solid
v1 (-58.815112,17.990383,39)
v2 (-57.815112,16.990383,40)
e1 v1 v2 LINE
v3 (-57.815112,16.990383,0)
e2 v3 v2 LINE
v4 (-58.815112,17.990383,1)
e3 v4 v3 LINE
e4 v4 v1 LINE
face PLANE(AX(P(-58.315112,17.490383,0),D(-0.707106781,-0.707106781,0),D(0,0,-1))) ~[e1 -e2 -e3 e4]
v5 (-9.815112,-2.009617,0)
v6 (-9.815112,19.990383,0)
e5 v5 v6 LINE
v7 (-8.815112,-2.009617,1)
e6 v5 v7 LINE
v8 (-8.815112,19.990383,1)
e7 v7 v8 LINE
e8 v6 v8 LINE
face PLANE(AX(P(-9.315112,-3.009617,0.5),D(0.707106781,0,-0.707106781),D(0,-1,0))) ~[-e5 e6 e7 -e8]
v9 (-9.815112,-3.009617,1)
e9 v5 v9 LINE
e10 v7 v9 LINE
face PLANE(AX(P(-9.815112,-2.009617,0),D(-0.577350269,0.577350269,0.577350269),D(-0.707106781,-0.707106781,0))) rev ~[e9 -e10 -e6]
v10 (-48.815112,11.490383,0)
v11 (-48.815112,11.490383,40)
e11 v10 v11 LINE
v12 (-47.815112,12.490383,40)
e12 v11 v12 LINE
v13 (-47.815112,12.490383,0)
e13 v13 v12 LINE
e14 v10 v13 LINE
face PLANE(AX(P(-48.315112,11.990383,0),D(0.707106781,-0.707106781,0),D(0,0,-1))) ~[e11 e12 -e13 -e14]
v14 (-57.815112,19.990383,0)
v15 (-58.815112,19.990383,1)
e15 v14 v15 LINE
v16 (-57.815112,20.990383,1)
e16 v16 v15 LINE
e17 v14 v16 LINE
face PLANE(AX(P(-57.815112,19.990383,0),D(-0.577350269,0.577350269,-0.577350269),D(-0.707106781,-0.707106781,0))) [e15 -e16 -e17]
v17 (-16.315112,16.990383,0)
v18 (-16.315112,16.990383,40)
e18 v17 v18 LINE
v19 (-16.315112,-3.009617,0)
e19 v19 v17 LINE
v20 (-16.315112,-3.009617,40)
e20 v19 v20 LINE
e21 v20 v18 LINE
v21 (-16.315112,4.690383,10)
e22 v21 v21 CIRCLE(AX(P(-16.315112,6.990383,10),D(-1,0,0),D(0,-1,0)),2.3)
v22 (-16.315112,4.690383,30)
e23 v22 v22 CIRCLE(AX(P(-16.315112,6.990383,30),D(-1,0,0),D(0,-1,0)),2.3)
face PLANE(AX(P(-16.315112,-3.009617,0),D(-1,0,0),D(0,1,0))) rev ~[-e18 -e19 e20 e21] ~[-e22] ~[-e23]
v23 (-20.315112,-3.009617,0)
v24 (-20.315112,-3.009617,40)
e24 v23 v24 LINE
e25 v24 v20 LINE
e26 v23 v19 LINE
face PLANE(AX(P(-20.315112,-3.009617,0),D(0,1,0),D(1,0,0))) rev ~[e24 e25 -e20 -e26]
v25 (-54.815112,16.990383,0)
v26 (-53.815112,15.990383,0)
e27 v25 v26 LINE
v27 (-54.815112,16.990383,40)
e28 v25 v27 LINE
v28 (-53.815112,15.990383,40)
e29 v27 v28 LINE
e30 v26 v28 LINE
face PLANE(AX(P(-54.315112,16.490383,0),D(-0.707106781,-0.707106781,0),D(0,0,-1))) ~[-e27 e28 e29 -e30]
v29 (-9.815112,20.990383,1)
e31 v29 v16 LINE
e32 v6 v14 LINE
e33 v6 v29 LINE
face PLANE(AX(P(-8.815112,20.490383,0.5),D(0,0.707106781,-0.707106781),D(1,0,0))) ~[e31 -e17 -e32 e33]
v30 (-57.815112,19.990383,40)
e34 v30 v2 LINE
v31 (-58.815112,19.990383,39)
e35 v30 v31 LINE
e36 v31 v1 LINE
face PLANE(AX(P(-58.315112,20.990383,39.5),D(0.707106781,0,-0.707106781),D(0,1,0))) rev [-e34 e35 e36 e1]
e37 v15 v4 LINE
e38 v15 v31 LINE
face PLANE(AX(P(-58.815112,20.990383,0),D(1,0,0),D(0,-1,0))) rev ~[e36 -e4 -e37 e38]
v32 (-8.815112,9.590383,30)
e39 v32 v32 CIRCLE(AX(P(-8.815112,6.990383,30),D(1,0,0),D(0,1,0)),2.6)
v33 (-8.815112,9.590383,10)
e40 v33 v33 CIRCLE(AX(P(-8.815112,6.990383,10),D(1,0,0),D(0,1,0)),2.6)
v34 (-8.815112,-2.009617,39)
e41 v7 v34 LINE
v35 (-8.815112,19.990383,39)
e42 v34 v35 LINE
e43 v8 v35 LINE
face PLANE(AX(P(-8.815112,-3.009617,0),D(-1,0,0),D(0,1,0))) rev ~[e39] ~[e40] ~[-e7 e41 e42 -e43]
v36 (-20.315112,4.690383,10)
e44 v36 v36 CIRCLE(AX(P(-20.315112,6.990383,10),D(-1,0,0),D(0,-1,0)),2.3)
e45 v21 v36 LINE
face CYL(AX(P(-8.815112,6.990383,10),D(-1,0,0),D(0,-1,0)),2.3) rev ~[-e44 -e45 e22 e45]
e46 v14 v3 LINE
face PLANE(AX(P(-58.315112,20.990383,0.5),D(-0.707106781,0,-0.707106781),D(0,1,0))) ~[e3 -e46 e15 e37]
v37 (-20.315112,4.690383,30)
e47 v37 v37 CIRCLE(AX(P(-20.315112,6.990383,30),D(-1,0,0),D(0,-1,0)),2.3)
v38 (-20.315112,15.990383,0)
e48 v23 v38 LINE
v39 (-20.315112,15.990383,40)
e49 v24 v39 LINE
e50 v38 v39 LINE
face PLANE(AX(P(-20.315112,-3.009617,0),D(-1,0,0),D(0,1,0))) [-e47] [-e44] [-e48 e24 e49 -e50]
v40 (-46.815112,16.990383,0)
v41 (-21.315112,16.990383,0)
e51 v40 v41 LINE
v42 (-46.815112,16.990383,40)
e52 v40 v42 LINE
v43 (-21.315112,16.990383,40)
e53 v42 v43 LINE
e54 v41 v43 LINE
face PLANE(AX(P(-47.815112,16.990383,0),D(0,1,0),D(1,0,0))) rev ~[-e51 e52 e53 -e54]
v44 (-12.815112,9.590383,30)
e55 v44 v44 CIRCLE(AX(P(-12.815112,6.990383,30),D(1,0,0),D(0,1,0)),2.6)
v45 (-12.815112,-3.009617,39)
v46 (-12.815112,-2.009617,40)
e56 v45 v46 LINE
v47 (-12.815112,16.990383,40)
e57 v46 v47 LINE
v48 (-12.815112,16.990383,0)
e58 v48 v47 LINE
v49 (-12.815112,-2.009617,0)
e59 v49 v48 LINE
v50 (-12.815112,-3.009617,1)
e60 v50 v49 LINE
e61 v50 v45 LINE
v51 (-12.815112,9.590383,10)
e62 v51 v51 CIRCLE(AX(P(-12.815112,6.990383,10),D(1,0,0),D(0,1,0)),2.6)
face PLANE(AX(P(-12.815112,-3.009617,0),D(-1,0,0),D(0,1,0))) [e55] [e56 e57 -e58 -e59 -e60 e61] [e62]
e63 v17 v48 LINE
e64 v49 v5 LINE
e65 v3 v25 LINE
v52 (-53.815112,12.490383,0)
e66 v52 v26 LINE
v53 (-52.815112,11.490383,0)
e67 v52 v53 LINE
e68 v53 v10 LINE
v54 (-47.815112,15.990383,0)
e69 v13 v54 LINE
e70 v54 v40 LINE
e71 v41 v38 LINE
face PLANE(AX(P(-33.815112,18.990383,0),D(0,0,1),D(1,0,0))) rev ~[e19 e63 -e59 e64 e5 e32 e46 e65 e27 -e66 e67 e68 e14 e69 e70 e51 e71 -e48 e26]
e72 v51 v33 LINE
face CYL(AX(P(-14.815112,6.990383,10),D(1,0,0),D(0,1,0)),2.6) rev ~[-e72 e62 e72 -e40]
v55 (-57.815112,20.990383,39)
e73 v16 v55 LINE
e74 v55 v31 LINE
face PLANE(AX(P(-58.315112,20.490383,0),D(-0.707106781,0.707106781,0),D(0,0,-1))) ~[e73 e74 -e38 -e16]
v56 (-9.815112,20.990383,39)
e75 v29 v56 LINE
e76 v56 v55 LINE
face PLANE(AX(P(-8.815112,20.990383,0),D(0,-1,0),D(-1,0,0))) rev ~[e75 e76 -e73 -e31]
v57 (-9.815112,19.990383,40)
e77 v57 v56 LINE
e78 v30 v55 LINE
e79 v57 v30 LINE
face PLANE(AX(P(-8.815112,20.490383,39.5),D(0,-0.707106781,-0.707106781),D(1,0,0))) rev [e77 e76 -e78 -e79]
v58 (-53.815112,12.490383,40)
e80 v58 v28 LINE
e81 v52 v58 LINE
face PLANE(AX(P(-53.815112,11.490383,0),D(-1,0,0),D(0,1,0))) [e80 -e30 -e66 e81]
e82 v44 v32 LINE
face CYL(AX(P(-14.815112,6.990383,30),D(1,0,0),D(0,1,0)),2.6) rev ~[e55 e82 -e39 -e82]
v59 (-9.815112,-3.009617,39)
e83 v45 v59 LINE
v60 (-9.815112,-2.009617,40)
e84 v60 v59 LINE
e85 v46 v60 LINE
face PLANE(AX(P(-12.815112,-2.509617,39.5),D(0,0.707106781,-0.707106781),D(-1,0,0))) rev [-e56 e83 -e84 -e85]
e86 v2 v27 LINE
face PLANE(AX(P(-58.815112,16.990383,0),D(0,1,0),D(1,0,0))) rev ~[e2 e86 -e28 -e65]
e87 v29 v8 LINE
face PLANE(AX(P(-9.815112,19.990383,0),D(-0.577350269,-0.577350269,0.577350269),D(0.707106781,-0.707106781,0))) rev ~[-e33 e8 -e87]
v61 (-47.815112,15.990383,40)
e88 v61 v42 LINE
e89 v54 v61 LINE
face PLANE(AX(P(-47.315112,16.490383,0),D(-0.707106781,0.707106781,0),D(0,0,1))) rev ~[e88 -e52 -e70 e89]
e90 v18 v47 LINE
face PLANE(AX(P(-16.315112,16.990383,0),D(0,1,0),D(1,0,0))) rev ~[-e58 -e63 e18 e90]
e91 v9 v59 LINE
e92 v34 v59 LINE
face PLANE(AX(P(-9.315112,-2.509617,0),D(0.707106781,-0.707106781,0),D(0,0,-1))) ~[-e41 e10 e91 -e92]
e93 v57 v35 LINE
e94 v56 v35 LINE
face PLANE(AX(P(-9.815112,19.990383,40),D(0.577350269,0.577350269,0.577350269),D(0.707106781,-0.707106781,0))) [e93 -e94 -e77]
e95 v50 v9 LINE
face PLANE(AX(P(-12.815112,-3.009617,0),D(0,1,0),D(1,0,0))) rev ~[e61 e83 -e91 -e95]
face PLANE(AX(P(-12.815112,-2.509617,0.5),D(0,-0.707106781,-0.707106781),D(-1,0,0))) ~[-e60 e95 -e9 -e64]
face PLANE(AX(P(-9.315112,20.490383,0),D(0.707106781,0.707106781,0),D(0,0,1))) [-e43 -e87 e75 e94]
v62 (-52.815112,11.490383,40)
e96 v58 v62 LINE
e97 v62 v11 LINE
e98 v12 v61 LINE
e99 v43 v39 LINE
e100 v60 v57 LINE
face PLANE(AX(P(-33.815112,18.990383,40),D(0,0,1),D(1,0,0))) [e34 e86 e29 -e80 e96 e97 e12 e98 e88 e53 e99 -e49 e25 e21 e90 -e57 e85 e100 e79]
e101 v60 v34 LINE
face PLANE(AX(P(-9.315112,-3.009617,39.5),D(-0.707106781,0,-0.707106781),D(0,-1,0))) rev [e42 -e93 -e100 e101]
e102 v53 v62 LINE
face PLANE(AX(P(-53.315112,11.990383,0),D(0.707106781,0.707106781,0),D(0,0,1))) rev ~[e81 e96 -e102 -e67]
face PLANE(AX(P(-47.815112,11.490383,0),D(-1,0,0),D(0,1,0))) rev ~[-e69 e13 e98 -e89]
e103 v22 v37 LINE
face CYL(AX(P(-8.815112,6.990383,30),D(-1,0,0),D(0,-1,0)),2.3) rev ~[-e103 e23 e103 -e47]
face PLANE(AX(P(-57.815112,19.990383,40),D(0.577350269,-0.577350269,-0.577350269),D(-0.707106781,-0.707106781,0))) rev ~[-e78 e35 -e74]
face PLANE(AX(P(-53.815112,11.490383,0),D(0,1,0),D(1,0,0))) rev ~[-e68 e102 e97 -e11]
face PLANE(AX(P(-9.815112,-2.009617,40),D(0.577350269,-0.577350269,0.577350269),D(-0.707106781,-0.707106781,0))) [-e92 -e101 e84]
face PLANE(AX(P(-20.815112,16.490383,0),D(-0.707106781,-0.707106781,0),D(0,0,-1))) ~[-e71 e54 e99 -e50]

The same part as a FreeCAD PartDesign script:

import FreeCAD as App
import Part
import Sketcher
from FreeCAD import Vector
Q = App.Units.Quantity


def edges_at(feature, points):
    """Names of the edges that pass closest to the given points."""
    edges = feature.Shape.Edges
    near = lambda p: min(range(len(edges)), key=lambda i: edges[i].distToShape(Part.Vertex(*p))[0])
    return sorted({f"Edge{near(p) + 1}" for p in points})

doc = App.newDocument("Part")
body = doc.addObject("PartDesign::Body", "Body")

# Sketch on XY plane
sketch1 = body.newObject("Sketcher::SketchObject", "Sketch")
sketch1.AttachmentSupport = (doc.getObject("XY_Plane"), [""])
sketch1.MapMode = "FlatFace"
sketch1.addGeometry([
    Part.LineSegment(Vector(-8.8, 21, 0), Vector(-58.8, 21, 0)),  # 0
    Part.LineSegment(Vector(-58.8, 21, 0), Vector(-58.8, 17, 0)),  # 1
    Part.LineSegment(Vector(-58.8, 17, 0), Vector(-53.8, 17, 0)),  # 2
    Part.LineSegment(Vector(-53.8, 17, 0), Vector(-53.8, 11.5, 0)),  # 3
    Part.LineSegment(Vector(-53.8, 11.5, 0), Vector(-47.8, 11.5, 0)),  # 4
    Part.LineSegment(Vector(-47.8, 11.5, 0), Vector(-47.8, 17, 0)),  # 5
    Part.LineSegment(Vector(-47.8, 17, 0), Vector(-20.3, 17, 0)),  # 6
    Part.LineSegment(Vector(-20.3, 17, 0), Vector(-20.3, -3, 0)),  # 7
    Part.LineSegment(Vector(-20.3, -3, 0), Vector(-16.3, -3, 0)),  # 8
    Part.LineSegment(Vector(-16.3, -3, 0), Vector(-16.3, 17, 0)),  # 9
    Part.LineSegment(Vector(-16.3, 17, 0), Vector(-12.8, 17, 0)),  # 10
    Part.LineSegment(Vector(-12.8, 17, 0), Vector(-12.8, -3, 0)),  # 11
    Part.LineSegment(Vector(-12.8, -3, 0), Vector(-8.8, -3, 0)),  # 12
    Part.LineSegment(Vector(-8.8, -3, 0), Vector(-8.8, 21, 0)),  # 13
], False)
sketch1.addConstraint([
    Sketcher.Constraint("Coincident", 0, 2, 1, 1),
    Sketcher.Constraint("Coincident", 1, 2, 2, 1),
    Sketcher.Constraint("Coincident", 2, 2, 3, 1),
    Sketcher.Constraint("Coincident", 3, 2, 4, 1),
    Sketcher.Constraint("Coincident", 4, 2, 5, 1),
    Sketcher.Constraint("Coincident", 5, 2, 6, 1),
    Sketcher.Constraint("Coincident", 6, 2, 7, 1),
    Sketcher.Constraint("Coincident", 7, 2, 8, 1),
    Sketcher.Constraint("Coincident", 8, 2, 9, 1),
    Sketcher.Constraint("Coincident", 9, 2, 10, 1),
    Sketcher.Constraint("Coincident", 10, 2, 11, 1),
    Sketcher.Constraint("Coincident", 11, 2, 12, 1),
    Sketcher.Constraint("Coincident", 12, 2, 13, 1),
    Sketcher.Constraint("Coincident", 13, 2, 0, 1),
    Sketcher.Constraint("Horizontal", 0),
    Sketcher.Constraint("Vertical", 1),
    Sketcher.Constraint("Horizontal", 2),
    Sketcher.Constraint("Vertical", 3),
    Sketcher.Constraint("Horizontal", 4),
    Sketcher.Constraint("Vertical", 5),
    Sketcher.Constraint("Horizontal", 6),
    Sketcher.Constraint("Vertical", 7),
    Sketcher.Constraint("Horizontal", 8),
    Sketcher.Constraint("Vertical", 9),
    Sketcher.Constraint("Horizontal", 10),
    Sketcher.Constraint("Vertical", 11),
    Sketcher.Constraint("Horizontal", 12),
    Sketcher.Constraint("Vertical", 13),
    Sketcher.Constraint("Horizontal", 2, 2, 5, 2),
    Sketcher.Constraint("Horizontal", 6, 2, 9, 2),
    Sketcher.Constraint("Horizontal", 8, 2, 11, 2),
    Sketcher.Constraint("Equal", 8, 12),
    Sketcher.Constraint("Equal", 12, 1),
    Sketcher.Constraint("DistanceX", 0, 2, 0, 1, Q("50 mm")),
    Sketcher.Constraint("DistanceX", 2, 1, 2, 2, Q("5 mm")),
    Sketcher.Constraint("DistanceX", 4, 1, 4, 2, Q("6 mm")),
    Sketcher.Constraint("DistanceX", 8, 1, 8, 2, Q("4 mm")),
    Sketcher.Constraint("DistanceY", 7, 2, 7, 1, Q("20 mm")),
    Sketcher.Constraint("DistanceX", 6, 1, 6, 2, Q("27.5 mm")),
    Sketcher.Constraint("DistanceY", 3, 2, 3, 1, Q("5.5 mm")),
    Sketcher.Constraint("DistanceX", 6, 2, -1, 1, Q("20.315112 mm")),
    Sketcher.Constraint("DistanceY", -1, 1, 0, 2, Q("20.990383 mm")),
])
pad1 = body.newObject("PartDesign::Pad", "Pad")
pad1.Profile = sketch1
pad1.Length = 40
doc.recompute()

chamfer = body.newObject("PartDesign::Chamfer", "Chamfer")
chamfer.Base = (pad1, edges_at(pad1, [
    (-47.815, 16.99, 20),
    (-53.815, 16.99, 20),
    (-53.815, 11.49, 20),
    (-58.815, 16.99, 20),
    (-58.815, 20.99, 20),
    (-8.815, 20.99, 20),
    (-8.815, -3.01, 20),
    (-33.815, 20.99, 40),
    (-33.815, 20.99, 0),
    (-20.315, 16.99, 20),
    (-8.815, 8.99, 40),
    (-8.815, 8.99, 0),
    (-58.815, 18.99, 40),
    (-58.815, 18.99, 0),
    (-47.815, 11.49, 20),
    (-10.815, -3.01, 0),
    (-10.815, -3.01, 40),
]))
chamfer.Size = 1

# Sketch on YZ plane
sketch2 = body.newObject("Sketcher::SketchObject", "Sketch001")
sketch2.AttachmentSupport = (doc.getObject("YZ_Plane"), [""])
sketch2.MapMode = "FlatFace"
sketch2.AttachmentOffset = App.Placement(Vector(0, 0, -8.815112), App.Rotation())
sketch2.addGeometry([
    Part.Circle(Vector(7, 10, 0), Vector(0, 0, 1), 2.3),
    Part.Circle(Vector(7, 30, 0), Vector(0, 0, 1), 2.3),
], False)
sketch2.addConstraint([
    Sketcher.Constraint("Equal", 0, 1),
    Sketcher.Constraint("Vertical", 0, 3, 1, 3),
    Sketcher.Constraint("Diameter", 0, Q("4.6 mm")),
    Sketcher.Constraint("DistanceY", -1, 1, 0, 3, Q("10 mm")),
    Sketcher.Constraint("DistanceY", -1, 1, 1, 3, Q("30 mm")),
    Sketcher.Constraint("DistanceX", -1, 1, 0, 3, Q("6.990383 mm")),
])
doc.recompute()
hole = body.newObject("PartDesign::Hole", "Hole")
hole.Profile = sketch2
hole.ThreadType = "None"
hole.Diameter = 4.6
hole.DepthType = "Dimension"
hole.Depth = 12
hole.DrillPoint = "Flat"
hole.HoleCutType = "Counterbore"
hole.HoleCutDiameter = 5.2
hole.HoleCutDepth = 6

doc.recompute()
